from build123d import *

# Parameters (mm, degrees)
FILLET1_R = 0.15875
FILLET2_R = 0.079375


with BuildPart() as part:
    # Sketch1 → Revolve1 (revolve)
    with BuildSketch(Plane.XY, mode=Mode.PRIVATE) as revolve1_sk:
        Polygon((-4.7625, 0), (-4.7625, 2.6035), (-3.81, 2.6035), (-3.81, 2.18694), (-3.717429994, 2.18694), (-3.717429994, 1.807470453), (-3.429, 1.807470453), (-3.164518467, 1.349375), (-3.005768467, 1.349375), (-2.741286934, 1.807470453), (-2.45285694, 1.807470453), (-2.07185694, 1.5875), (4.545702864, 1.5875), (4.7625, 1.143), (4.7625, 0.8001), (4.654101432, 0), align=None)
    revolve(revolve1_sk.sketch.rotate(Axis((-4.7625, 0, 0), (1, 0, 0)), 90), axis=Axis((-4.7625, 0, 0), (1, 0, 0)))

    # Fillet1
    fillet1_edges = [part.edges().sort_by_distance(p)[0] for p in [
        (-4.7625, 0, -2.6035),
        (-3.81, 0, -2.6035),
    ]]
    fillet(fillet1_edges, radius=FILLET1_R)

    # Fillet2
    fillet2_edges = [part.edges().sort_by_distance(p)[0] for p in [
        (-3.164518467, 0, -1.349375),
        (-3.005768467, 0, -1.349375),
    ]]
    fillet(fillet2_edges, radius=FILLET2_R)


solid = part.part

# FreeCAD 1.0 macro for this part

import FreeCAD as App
import Part
import Sketcher
from FreeCAD import Vector
Q = App.Units.Quantity


def edges_at(feature, points):
    """Names of the edges that pass closest to the given points."""
    edges = feature.Shape.Edges
    near = lambda p: min(range(len(edges)), key=lambda i: edges[i].distToShape(Part.Vertex(*p))[0])
    return sorted({f"Edge{near(p) + 1}" for p in points})


def add_polygon(sketch, points):
    """Adds a closed chain of lines whose ends are joined by coincident constraints."""
    first, n = sketch.GeometryCount, len(points)
    for a, b in zip(points, points[1:] + points[:1]):
        sketch.addGeometry(Part.LineSegment(App.Vector(*a, 0), App.Vector(*b, 0)), False)
    for i in range(n):
        sketch.addConstraint(Sketcher.Constraint("Coincident", first + i, 2, first + (i + 1) % n, 1))

doc = App.newDocument("Part")
body = doc.addObject("PartDesign::Body", "Body")

# Sketch on XY plane
sketch1 = body.newObject("Sketcher::SketchObject", "Sketch")
sketch1.AttachmentSupport = (doc.getObject("XY_Plane"), [""])
sketch1.MapMode = "FlatFace"
add_polygon(sketch1, [(-4.76, 2.6), (-4.76, 0), (4.65, 0), (4.76, 0.8), (4.76, 1.14), (4.55, 1.59), (-2.07, 1.59), (-2.45, 1.81), (-2.74, 1.81), (-3.01, 1.35), (-3.16, 1.35), (-3.43, 1.81), (-3.72, 1.81), (-3.72, 2.19), (-3.81, 2.19), (-3.81, 2.6)])  # lines 0-15
sketch1.addConstraint([
    Sketcher.Constraint("Vertical", 0),
    Sketcher.Constraint("Horizontal", 1),
    Sketcher.Constraint("Vertical", 3),
    Sketcher.Constraint("Horizontal", 5),
    Sketcher.Constraint("Horizontal", 7),
    Sketcher.Constraint("Horizontal", 9),
    Sketcher.Constraint("Horizontal", 11),
    Sketcher.Constraint("Vertical", 12),
    Sketcher.Constraint("Horizontal", 13),
    Sketcher.Constraint("Vertical", 14),
    Sketcher.Constraint("Horizontal", 15),
    Sketcher.Constraint("PointOnObject", 0, 2, -1),
    Sketcher.Constraint("Perpendicular", 6, 8),
    Sketcher.Constraint("Horizontal", 7, 2, 10, 2),
    Sketcher.Constraint("Equal", 7, 11),
    Sketcher.Constraint("Equal", 8, 10),
    Sketcher.Constraint("Angle", 4, Q("116 deg")),
    Sketcher.Constraint("Angle", 6, Q("150 deg")),
    Sketcher.Constraint("DistanceX", 13, 2, -1, 1, Q("3.81 mm")),
    Sketcher.Constraint("DistanceX", 1, 1, 1, 2, Q("9.416601 mm")),
    Sketcher.Constraint("DistanceX", 15, 2, 15, 1, Q("0.9525 mm")),
    Sketcher.Constraint("DistanceY", 0, 2, 0, 1, Q("2.6035 mm")),
    Sketcher.Constraint("DistanceY", 3, 1, 3, 2, Q("0.3429 mm")),
    Sketcher.Constraint("DistanceY", -1, 1, 3, 2, Q("1.143 mm")),
    Sketcher.Constraint("DistanceX", 10, 2, -1, 1, Q("3.429 mm")),
    Sketcher.Constraint("DistanceX", 0, 2, 2, 2, Q("9.525 mm")),
    Sketcher.Constraint("DistanceX", 6, 2, 5, 2, Q("0.381 mm")),
    Sketcher.Constraint("DistanceX", 5, 2, 5, 1, Q("6.61756 mm")),
    Sketcher.Constraint("DistanceX", 7, 2, 7, 1, Q("0.28843 mm")),
    Sketcher.Constraint("DistanceX", 9, 2, 9, 1, Q("0.15875 mm")),
    Sketcher.Constraint("DistanceY", 12, 1, 12, 2, Q("0.37947 mm")),
    Sketcher.Constraint("DistanceY", 14, 1, 14, 2, Q("0.41656 mm")),
])
revolution = body.newObject("PartDesign::Revolution", "Revolution")
revolution.Profile = sketch1
revolution.ReferenceAxis = (sketch1, ["H_Axis"])
revolution.Angle = 360
doc.recompute()

fillet = body.newObject("PartDesign::Fillet", "Fillet")
fillet.Base = (revolution, edges_at(revolution, [(-4.763, 0, -2.603), (-3.81, 0, -2.603)]))
fillet.Radius = 0.15875
doc.recompute()

fillet2 = body.newObject("PartDesign::Fillet", "Fillet001")
fillet2.Base = (fillet, edges_at(fillet, [(-3.165, 0, -1.349), (-3.006, 0, -1.349)]))
fillet2.Radius = 0.079375

doc.recompute()
